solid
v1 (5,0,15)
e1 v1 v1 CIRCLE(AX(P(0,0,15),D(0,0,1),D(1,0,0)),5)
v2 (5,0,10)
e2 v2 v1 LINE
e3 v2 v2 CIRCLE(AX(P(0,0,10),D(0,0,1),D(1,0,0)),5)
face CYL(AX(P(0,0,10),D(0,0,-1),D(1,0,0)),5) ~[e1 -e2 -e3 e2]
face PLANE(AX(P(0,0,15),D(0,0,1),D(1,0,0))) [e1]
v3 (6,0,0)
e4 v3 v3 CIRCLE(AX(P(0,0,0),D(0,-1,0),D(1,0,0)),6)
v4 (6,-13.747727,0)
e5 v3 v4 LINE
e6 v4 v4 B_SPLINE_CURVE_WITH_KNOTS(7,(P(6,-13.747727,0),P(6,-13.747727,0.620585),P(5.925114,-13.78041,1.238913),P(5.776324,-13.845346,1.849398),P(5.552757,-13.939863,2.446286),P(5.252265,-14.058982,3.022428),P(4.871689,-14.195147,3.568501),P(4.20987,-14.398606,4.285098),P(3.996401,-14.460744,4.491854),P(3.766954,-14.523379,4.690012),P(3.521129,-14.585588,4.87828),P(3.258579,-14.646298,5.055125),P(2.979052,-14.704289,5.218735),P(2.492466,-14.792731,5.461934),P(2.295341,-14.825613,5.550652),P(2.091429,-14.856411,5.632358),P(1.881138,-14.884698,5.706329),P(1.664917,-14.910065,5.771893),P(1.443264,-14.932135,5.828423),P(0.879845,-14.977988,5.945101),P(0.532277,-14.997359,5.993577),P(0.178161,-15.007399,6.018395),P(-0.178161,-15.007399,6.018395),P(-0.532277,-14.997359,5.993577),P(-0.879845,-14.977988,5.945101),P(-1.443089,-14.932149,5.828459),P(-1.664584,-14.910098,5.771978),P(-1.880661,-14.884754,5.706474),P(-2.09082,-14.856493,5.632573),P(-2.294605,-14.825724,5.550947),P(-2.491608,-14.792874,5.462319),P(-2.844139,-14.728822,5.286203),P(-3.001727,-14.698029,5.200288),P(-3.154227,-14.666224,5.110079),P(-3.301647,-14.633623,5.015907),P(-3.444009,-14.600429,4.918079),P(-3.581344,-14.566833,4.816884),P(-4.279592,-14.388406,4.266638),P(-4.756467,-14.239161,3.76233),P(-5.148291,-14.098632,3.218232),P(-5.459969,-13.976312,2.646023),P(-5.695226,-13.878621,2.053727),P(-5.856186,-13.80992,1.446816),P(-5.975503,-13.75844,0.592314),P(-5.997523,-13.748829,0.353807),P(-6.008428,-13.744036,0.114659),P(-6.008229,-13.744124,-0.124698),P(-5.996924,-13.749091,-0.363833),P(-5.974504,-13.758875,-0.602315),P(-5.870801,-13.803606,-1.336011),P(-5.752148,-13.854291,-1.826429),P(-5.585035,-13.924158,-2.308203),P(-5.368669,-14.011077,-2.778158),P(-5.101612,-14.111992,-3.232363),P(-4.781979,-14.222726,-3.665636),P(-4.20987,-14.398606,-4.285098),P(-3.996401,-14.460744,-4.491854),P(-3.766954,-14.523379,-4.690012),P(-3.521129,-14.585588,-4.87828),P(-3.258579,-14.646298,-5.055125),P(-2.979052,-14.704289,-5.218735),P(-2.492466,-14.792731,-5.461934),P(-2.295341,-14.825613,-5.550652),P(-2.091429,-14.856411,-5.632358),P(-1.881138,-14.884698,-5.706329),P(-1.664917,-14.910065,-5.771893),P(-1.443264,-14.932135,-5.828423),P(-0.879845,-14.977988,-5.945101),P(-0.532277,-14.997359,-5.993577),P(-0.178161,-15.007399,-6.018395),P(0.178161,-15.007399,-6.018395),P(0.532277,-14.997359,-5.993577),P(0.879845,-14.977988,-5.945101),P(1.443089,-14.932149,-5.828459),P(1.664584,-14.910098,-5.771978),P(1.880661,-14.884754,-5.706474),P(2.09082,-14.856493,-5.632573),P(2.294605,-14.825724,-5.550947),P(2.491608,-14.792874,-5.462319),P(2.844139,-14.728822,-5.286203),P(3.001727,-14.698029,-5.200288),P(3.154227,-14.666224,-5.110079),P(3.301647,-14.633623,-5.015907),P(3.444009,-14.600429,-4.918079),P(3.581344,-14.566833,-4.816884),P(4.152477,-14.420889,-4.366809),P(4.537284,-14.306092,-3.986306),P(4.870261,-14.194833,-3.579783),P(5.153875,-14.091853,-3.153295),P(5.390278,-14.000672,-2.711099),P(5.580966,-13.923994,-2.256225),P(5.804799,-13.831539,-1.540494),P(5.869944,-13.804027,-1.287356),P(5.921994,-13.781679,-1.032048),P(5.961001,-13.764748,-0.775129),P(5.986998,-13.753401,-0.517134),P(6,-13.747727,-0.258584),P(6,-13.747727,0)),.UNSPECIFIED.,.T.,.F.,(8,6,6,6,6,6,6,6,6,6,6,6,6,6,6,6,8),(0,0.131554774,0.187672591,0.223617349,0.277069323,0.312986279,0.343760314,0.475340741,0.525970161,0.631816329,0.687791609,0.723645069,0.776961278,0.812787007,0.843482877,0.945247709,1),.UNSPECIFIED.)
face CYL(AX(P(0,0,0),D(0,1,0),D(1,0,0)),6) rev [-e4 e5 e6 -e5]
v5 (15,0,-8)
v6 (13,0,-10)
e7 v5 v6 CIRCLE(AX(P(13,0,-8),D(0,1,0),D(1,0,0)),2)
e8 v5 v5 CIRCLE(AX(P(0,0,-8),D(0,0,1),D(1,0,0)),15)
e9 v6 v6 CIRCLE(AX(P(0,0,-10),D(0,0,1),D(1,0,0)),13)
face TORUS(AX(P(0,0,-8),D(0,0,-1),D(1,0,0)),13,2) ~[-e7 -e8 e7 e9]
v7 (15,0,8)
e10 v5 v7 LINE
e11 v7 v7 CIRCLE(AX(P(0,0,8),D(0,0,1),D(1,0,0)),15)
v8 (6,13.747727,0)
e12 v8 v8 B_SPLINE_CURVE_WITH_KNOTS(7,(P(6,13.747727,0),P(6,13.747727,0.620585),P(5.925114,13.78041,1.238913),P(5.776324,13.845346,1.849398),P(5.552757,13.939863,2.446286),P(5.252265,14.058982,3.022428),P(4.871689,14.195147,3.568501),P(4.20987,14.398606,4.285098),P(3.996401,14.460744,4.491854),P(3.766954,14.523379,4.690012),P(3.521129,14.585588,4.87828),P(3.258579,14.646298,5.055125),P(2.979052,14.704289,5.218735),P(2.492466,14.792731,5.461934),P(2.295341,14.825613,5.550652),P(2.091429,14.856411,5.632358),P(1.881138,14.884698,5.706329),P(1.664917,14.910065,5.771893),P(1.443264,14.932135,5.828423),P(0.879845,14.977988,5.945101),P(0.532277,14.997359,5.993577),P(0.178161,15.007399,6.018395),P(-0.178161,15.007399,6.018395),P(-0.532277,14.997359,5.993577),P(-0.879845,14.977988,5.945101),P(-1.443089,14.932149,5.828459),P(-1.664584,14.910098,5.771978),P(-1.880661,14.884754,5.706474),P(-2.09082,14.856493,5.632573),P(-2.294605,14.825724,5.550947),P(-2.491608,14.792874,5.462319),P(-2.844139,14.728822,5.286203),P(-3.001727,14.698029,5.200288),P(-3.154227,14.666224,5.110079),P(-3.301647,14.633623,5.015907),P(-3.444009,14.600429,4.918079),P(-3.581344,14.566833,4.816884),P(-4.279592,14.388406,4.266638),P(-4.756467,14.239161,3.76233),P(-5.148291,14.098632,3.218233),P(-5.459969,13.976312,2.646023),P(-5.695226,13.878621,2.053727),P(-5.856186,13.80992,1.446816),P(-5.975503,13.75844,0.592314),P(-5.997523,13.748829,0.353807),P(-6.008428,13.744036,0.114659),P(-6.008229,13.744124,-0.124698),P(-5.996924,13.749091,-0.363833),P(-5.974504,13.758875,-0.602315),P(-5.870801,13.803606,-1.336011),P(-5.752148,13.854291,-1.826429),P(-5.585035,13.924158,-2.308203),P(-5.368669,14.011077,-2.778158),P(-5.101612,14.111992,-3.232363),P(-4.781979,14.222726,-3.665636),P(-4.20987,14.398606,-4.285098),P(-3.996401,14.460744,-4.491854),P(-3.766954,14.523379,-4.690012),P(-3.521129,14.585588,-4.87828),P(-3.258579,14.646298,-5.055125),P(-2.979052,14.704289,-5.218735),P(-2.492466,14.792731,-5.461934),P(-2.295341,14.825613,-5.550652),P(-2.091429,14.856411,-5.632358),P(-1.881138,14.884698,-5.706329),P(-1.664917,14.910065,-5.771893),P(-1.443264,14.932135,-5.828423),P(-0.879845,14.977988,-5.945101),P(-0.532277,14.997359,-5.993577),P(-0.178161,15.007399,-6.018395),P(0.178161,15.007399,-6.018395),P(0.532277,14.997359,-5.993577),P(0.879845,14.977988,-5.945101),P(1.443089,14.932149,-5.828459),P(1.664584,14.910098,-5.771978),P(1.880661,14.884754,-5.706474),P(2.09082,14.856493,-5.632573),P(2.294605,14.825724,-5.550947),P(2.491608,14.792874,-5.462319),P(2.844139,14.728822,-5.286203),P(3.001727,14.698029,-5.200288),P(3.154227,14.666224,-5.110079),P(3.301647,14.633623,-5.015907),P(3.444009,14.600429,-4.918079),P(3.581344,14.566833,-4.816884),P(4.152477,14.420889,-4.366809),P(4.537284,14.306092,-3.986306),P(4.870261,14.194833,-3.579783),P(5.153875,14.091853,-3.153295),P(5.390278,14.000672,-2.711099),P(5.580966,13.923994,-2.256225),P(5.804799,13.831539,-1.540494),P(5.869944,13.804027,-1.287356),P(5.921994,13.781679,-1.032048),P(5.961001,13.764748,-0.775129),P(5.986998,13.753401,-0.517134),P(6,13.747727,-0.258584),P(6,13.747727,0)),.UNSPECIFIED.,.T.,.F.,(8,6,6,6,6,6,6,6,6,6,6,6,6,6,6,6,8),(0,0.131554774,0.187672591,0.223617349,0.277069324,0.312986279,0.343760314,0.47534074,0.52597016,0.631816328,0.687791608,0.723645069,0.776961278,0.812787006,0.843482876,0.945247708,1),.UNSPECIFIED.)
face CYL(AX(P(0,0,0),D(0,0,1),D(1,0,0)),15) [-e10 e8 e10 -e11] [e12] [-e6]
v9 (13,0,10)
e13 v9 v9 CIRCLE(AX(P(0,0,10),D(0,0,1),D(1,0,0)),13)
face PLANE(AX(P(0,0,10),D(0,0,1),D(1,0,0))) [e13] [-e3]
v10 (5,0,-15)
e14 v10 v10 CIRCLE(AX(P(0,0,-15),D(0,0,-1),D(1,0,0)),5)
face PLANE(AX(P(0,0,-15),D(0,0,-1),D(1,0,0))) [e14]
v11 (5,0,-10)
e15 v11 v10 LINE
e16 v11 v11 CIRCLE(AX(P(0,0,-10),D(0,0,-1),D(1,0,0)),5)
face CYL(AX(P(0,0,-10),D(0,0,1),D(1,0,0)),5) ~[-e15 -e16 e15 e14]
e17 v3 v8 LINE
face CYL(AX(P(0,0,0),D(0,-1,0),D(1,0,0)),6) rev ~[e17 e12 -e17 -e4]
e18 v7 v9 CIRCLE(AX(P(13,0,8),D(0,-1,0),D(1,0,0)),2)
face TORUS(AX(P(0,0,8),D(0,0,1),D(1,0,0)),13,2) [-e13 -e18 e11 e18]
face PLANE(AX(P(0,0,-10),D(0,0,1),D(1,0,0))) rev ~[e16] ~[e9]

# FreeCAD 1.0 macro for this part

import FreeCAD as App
import Part
import Sketcher


def edges_at(feature, points):
    """Names of the edges that pass closest to the given points."""
    edges = feature.Shape.Edges
    near = lambda p: min(range(len(edges)), key=lambda i: edges[i].distToShape(Part.Vertex(*p))[0])
    return sorted({f"Edge{near(p) + 1}" for p in points})

doc = App.newDocument("Part")
body = doc.addObject("PartDesign::Body", "Body")

# Sketch on XY plane
sketch1 = body.newObject("Sketcher::SketchObject", "Sketch")
sketch1.AttachmentSupport = (doc.getObject("XY_Plane"), [""])
sketch1.MapMode = "FlatFace"
sketch1.addGeometry(Part.Circle(App.Vector(0, 0, 0), App.Vector(0, 0, 1), 15), False)
sketch1.addConstraint(Sketcher.Constraint("Coincident", 0, 3, -1, 1))
sketch1.addConstraint(Sketcher.Constraint("Diameter", 0, 30.0))
pad1 = body.newObject("PartDesign::Pad", "Pad")
pad1.Profile = sketch1
pad1.Length = 20
pad1.Midplane = True
doc.recompute()

fillet = body.newObject("PartDesign::Fillet", "Fillet")
fillet.Base = (pad1, edges_at(pad1, [(-15, 0, 10), (-15, 0, -10)]))
fillet.Radius = 2

# Sketch on XY plane
sketch2 = body.newObject("Sketcher::SketchObject", "Sketch001")
sketch2.AttachmentSupport = (doc.getObject("XY_Plane"), [""])
sketch2.MapMode = "FlatFace"
sketch2.AttachmentOffset = App.Placement(App.Vector(0, 0, 10), App.Rotation())
sketch2.addGeometry(Part.Circle(App.Vector(0, 0, 0), App.Vector(0, 0, 1), 5), False)
sketch2.addConstraint(Sketcher.Constraint("Coincident", 0, 3, -1, 1))
sketch2.addConstraint(Sketcher.Constraint("Diameter", 0, 10.0))
pad2 = body.newObject("PartDesign::Pad", "Pad001")
pad2.Profile = sketch2
pad2.Length = 5

# Sketch on XY plane
sketch3 = body.newObject("Sketcher::SketchObject", "Sketch002")
sketch3.AttachmentSupport = (doc.getObject("XY_Plane"), [""])
sketch3.MapMode = "FlatFace"
sketch3.AttachmentOffset = App.Placement(App.Vector(0, 0, -10), App.Rotation())
sketch3.addGeometry(Part.Circle(App.Vector(0, 0, 0), App.Vector(0, 0, 1), 5), False)
sketch3.addConstraint(Sketcher.Constraint("Coincident", 0, 3, -1, 1))
sketch3.addConstraint(Sketcher.Constraint("Diameter", 0, 10.0))
pad3 = body.newObject("PartDesign::Pad", "Pad002")
pad3.Profile = sketch3
pad3.Length = 5
pad3.Reversed = True

# Sketch on XZ plane
sketch4 = body.newObject("Sketcher::SketchObject", "Sketch003")
sketch4.AttachmentSupport = (doc.getObject("XZ_Plane"), [""])
sketch4.MapMode = "FlatFace"
sketch4.addGeometry(Part.Circle(App.Vector(0, 0, 0), App.Vector(0, 0, 1), 6), False)
sketch4.addConstraint(Sketcher.Constraint("Coincident", 0, 3, -1, 1))
sketch4.addConstraint(Sketcher.Constraint("Diameter", 0, 12.0))
pocket1 = body.newObject("PartDesign::Pocket", "Pocket")
pocket1.Profile = sketch4
pocket1.Type = "ThroughAll"
pocket1.Midplane = True

doc.recompute()
